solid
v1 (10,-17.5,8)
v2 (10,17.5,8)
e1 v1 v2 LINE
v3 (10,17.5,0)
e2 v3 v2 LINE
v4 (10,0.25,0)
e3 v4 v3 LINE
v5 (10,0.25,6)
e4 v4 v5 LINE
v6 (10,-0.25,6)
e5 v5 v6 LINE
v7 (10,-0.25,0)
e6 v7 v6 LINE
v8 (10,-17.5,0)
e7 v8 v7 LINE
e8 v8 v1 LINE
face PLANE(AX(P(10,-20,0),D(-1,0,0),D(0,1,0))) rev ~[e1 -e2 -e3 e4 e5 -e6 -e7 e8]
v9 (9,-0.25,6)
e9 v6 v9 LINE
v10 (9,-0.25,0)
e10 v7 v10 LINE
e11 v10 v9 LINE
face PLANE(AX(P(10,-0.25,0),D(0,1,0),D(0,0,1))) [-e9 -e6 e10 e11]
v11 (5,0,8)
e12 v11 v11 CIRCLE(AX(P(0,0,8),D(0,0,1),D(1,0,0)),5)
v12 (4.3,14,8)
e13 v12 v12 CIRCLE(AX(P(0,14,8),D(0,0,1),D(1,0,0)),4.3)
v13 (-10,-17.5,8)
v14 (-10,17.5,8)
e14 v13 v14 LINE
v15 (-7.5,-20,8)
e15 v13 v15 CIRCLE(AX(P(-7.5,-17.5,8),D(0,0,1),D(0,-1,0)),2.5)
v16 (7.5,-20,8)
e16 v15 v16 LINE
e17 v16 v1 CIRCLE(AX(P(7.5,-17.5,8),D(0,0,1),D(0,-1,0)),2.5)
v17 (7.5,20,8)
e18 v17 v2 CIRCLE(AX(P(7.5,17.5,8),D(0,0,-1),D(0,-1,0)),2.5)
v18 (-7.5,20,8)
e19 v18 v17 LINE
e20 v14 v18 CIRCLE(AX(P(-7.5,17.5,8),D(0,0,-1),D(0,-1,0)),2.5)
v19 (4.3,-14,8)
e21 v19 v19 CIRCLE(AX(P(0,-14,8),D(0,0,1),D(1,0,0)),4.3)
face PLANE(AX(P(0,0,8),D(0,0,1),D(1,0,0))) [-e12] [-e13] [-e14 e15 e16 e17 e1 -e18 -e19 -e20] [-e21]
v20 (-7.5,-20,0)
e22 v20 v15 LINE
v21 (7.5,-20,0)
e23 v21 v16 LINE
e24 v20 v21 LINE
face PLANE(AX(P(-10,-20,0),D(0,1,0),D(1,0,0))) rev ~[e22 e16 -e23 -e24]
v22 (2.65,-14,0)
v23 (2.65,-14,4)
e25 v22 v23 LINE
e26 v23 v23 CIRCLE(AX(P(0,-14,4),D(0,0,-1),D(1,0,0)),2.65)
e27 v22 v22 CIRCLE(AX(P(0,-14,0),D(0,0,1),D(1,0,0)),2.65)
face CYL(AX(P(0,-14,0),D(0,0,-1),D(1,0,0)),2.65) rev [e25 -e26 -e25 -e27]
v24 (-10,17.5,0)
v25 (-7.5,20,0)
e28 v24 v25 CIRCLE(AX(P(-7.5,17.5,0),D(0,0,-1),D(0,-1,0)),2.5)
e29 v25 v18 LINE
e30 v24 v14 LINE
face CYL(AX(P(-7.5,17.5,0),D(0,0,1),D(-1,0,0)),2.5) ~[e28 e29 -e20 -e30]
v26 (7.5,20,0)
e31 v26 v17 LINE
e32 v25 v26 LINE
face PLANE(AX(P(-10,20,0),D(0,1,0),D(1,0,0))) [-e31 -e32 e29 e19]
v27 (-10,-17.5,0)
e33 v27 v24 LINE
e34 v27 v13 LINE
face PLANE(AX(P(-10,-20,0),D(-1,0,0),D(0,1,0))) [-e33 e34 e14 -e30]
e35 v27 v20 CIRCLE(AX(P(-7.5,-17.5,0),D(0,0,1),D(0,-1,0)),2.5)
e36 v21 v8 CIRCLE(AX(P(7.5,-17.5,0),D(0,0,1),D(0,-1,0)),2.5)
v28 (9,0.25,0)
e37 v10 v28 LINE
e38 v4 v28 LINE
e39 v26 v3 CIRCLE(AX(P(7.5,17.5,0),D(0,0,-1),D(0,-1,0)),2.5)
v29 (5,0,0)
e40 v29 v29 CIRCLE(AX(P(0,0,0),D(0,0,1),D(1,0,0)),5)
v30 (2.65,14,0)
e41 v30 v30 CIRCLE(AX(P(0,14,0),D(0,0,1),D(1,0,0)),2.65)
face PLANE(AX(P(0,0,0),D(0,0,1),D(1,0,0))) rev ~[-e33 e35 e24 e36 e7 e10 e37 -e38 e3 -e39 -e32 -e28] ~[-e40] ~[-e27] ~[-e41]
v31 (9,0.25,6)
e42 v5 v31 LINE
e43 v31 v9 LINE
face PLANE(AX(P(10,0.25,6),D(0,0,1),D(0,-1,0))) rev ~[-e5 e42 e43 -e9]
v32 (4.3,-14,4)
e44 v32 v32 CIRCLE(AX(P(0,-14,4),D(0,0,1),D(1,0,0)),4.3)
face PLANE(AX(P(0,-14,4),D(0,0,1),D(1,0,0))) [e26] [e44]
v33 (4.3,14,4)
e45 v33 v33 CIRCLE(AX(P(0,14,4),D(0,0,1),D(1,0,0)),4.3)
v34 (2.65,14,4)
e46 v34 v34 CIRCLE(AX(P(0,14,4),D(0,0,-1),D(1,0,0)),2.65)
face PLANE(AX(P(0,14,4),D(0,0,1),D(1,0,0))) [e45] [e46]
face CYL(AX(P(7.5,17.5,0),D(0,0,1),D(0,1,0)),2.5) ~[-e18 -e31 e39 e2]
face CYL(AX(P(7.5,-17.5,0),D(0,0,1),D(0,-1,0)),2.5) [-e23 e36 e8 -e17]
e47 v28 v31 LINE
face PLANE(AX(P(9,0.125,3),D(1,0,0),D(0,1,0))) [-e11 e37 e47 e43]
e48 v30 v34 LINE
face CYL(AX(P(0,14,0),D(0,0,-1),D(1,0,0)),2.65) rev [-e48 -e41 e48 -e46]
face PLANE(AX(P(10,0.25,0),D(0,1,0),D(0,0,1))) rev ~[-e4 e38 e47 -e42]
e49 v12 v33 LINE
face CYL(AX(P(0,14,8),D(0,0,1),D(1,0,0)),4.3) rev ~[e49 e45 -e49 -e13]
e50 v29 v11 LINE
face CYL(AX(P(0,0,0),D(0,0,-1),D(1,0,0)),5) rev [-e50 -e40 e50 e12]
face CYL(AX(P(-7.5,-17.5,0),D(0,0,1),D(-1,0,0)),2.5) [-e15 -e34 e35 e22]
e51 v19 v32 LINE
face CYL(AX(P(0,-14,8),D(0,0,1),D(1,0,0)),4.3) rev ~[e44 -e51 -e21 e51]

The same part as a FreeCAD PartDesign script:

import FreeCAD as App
import Part
import Sketcher
from FreeCAD import Vector


def edges_at(feature, points):
    """Names of the edges that pass closest to the given points."""
    edges = feature.Shape.Edges
    near = lambda p: min(range(len(edges)), key=lambda i: edges[i].distToShape(Part.Vertex(*p))[0])
    return sorted({f"Edge{near(p) + 1}" for p in points})

doc = App.newDocument("Part")
params = doc.addObject("Spreadsheet::Sheet", "Params")
for row, (alias, value) in enumerate([
    ("sketch1_diameter", "10 mm"),
    ("sketch1_diameter2", "5.3 mm"),
    ("sketch1_width", "20 mm"),
    ("sketch1_height", "40 mm"),
    ("pad1_length", "8 mm"),
    ("sketch2_diameter", "8.6 mm"),
    ("pocket1_length", "4 mm"),
    ("fillet_radius", "2.5 mm"),
    ("sketch3_height", "6 mm"),
    ("sketch3_width", "0.5 mm"),
    ("pocket2_length", "1 mm"),
], start=1):
    params.set(f"A{row}", alias)
    params.set(f"B{row}", "=" + value)
    params.setAlias(f"B{row}", alias)

body = doc.addObject("PartDesign::Body", "Body")

# Sketch on XY plane
sketch1 = body.newObject("Sketcher::SketchObject", "Sketch")
sketch1.AttachmentSupport = (doc.getObject("XY_Plane"), [""])
sketch1.MapMode = "FlatFace"
sketch1.addGeometry([
    Part.LineSegment(Vector(-10, 20, 0), Vector(-10, -20, 0)),  # 0
    Part.LineSegment(Vector(-10, -20, 0), Vector(10, -20, 0)),  # 1
    Part.LineSegment(Vector(10, -20, 0), Vector(10, 20, 0)),  # 2
    Part.LineSegment(Vector(10, 20, 0), Vector(-10, 20, 0)),  # 3
    Part.Circle(Vector(0, -14, 0), Vector(0, 0, 1), 2.6),  # 4
    Part.Circle(Vector(0, 0, 0), Vector(0, 0, 1), 5),  # 5
    Part.Circle(Vector(0, 14, 0), Vector(0, 0, 1), 2.6),  # 6
], False)
sketch1.addConstraint([
    Sketcher.Constraint("Coincident", 0, 2, 1, 1),
    Sketcher.Constraint("Coincident", 1, 2, 2, 1),
    Sketcher.Constraint("Coincident", 2, 2, 3, 1),
    Sketcher.Constraint("Coincident", 3, 2, 0, 1),
    Sketcher.Constraint("Vertical", 0),
    Sketcher.Constraint("Horizontal", 1),
    Sketcher.Constraint("Vertical", 2),
    Sketcher.Constraint("Horizontal", 3),
    Sketcher.Constraint("Coincident", 5, 3, -1, 1),
    Sketcher.Constraint("Equal", 4, 6),
    Sketcher.Constraint("Symmetric", 4, 3, 6, 3, -1, 1),
    Sketcher.Constraint("Symmetric", 0, 2, 2, 2, -1, 1),
    Sketcher.Constraint("PointOnObject", 4, 3, -2),
    Sketcher.Constraint("Diameter", 5, 10.0),
    Sketcher.Constraint("Diameter", 4, 5.3),
    Sketcher.Constraint("DistanceX", 1, 1, 1, 2, 20.0),
    Sketcher.Constraint("DistanceY", 0, 2, 0, 1, 40.0),
    Sketcher.Constraint("DistanceY", 4, 3, -1, 1, 14.0),
])
sketch1.setExpression("Constraints[13]", "Params.sketch1_diameter")
sketch1.setExpression("Constraints[14]", "Params.sketch1_diameter2")
sketch1.setExpression("Constraints[15]", "Params.sketch1_width")
sketch1.setExpression("Constraints[16]", "Params.sketch1_height")
pad1 = body.newObject("PartDesign::Pad", "Pad")
pad1.Profile = sketch1
pad1.setExpression("Length", "Params.pad1_length")

# Sketch on XY plane
sketch2 = body.newObject("Sketcher::SketchObject", "Sketch001")
sketch2.AttachmentSupport = (doc.getObject("XY_Plane"), [""])
sketch2.MapMode = "FlatFace"
sketch2.AttachmentOffset = App.Placement(Vector(0, 0, 8), App.Rotation())
sketch2.addGeometry([
    Part.Circle(Vector(0, 14, 0), Vector(0, 0, 1), 4.3),
    Part.Circle(Vector(0, -14, 0), Vector(0, 0, 1), 4.3),
], False)
sketch2.addConstraint([
    Sketcher.Constraint("Equal", 0, 1),
    Sketcher.Constraint("Symmetric", 0, 3, 1, 3, -1, 1),
    Sketcher.Constraint("PointOnObject", 0, 3, -2),
    Sketcher.Constraint("Diameter", 0, 8.6),
    Sketcher.Constraint("DistanceY", -1, 1, 0, 3, 14.0),
])
sketch2.setExpression("Constraints[3]", "Params.sketch2_diameter")
pocket1 = body.newObject("PartDesign::Pocket", "Pocket")
pocket1.Profile = sketch2
pocket1.setExpression("Length", "Params.pocket1_length")
doc.recompute()

fillet = body.newObject("PartDesign::Fillet", "Fillet")
fillet.Base = (pocket1, edges_at(pocket1, [
    (10, -20, 4),
    (-10, -20, 4),
    (10, 20, 4),
    (-10, 20, 4),
]))
fillet.setExpression("Radius", "Params.fillet_radius")

# Sketch on YZ plane
sketch3 = body.newObject("Sketcher::SketchObject", "Sketch002")
sketch3.AttachmentSupport = (doc.getObject("YZ_Plane"), [""])
sketch3.MapMode = "FlatFace"
sketch3.AttachmentOffset = App.Placement(Vector(0, 0, 10), App.Rotation())
sketch3.addGeometry([
    Part.LineSegment(Vector(0.2, 0, 0), Vector(0.2, 6, 0)),
    Part.LineSegment(Vector(0.2, 6, 0), Vector(-0.2, 6, 0)),
    Part.LineSegment(Vector(-0.2, 6, 0), Vector(-0.2, 0, 0)),
    Part.LineSegment(Vector(-0.2, 0, 0), Vector(0.2, 0, 0)),
], False)
sketch3.addConstraint([
    Sketcher.Constraint("Coincident", 0, 2, 1, 1),
    Sketcher.Constraint("Coincident", 1, 2, 2, 1),
    Sketcher.Constraint("Coincident", 2, 2, 3, 1),
    Sketcher.Constraint("Coincident", 3, 2, 0, 1),
    Sketcher.Constraint("Vertical", 0),
    Sketcher.Constraint("Horizontal", 1),
    Sketcher.Constraint("Vertical", 2),
    Sketcher.Constraint("Horizontal", 3),
    Sketcher.Constraint("Symmetric", 2, 2, 3, 2, -1, 1),
    Sketcher.Constraint("DistanceY", 0, 1, 0, 2, 6.0),
    Sketcher.Constraint("DistanceX", 1, 2, 1, 1, 0.5),
])
sketch3.setExpression("Constraints[9]", "Params.sketch3_height")
sketch3.setExpression("Constraints[10]", "Params.sketch3_width")
pocket2 = body.newObject("PartDesign::Pocket", "Pocket001")
pocket2.Profile = sketch3
pocket2.setExpression("Length", "Params.pocket2_length")

doc.recompute()
